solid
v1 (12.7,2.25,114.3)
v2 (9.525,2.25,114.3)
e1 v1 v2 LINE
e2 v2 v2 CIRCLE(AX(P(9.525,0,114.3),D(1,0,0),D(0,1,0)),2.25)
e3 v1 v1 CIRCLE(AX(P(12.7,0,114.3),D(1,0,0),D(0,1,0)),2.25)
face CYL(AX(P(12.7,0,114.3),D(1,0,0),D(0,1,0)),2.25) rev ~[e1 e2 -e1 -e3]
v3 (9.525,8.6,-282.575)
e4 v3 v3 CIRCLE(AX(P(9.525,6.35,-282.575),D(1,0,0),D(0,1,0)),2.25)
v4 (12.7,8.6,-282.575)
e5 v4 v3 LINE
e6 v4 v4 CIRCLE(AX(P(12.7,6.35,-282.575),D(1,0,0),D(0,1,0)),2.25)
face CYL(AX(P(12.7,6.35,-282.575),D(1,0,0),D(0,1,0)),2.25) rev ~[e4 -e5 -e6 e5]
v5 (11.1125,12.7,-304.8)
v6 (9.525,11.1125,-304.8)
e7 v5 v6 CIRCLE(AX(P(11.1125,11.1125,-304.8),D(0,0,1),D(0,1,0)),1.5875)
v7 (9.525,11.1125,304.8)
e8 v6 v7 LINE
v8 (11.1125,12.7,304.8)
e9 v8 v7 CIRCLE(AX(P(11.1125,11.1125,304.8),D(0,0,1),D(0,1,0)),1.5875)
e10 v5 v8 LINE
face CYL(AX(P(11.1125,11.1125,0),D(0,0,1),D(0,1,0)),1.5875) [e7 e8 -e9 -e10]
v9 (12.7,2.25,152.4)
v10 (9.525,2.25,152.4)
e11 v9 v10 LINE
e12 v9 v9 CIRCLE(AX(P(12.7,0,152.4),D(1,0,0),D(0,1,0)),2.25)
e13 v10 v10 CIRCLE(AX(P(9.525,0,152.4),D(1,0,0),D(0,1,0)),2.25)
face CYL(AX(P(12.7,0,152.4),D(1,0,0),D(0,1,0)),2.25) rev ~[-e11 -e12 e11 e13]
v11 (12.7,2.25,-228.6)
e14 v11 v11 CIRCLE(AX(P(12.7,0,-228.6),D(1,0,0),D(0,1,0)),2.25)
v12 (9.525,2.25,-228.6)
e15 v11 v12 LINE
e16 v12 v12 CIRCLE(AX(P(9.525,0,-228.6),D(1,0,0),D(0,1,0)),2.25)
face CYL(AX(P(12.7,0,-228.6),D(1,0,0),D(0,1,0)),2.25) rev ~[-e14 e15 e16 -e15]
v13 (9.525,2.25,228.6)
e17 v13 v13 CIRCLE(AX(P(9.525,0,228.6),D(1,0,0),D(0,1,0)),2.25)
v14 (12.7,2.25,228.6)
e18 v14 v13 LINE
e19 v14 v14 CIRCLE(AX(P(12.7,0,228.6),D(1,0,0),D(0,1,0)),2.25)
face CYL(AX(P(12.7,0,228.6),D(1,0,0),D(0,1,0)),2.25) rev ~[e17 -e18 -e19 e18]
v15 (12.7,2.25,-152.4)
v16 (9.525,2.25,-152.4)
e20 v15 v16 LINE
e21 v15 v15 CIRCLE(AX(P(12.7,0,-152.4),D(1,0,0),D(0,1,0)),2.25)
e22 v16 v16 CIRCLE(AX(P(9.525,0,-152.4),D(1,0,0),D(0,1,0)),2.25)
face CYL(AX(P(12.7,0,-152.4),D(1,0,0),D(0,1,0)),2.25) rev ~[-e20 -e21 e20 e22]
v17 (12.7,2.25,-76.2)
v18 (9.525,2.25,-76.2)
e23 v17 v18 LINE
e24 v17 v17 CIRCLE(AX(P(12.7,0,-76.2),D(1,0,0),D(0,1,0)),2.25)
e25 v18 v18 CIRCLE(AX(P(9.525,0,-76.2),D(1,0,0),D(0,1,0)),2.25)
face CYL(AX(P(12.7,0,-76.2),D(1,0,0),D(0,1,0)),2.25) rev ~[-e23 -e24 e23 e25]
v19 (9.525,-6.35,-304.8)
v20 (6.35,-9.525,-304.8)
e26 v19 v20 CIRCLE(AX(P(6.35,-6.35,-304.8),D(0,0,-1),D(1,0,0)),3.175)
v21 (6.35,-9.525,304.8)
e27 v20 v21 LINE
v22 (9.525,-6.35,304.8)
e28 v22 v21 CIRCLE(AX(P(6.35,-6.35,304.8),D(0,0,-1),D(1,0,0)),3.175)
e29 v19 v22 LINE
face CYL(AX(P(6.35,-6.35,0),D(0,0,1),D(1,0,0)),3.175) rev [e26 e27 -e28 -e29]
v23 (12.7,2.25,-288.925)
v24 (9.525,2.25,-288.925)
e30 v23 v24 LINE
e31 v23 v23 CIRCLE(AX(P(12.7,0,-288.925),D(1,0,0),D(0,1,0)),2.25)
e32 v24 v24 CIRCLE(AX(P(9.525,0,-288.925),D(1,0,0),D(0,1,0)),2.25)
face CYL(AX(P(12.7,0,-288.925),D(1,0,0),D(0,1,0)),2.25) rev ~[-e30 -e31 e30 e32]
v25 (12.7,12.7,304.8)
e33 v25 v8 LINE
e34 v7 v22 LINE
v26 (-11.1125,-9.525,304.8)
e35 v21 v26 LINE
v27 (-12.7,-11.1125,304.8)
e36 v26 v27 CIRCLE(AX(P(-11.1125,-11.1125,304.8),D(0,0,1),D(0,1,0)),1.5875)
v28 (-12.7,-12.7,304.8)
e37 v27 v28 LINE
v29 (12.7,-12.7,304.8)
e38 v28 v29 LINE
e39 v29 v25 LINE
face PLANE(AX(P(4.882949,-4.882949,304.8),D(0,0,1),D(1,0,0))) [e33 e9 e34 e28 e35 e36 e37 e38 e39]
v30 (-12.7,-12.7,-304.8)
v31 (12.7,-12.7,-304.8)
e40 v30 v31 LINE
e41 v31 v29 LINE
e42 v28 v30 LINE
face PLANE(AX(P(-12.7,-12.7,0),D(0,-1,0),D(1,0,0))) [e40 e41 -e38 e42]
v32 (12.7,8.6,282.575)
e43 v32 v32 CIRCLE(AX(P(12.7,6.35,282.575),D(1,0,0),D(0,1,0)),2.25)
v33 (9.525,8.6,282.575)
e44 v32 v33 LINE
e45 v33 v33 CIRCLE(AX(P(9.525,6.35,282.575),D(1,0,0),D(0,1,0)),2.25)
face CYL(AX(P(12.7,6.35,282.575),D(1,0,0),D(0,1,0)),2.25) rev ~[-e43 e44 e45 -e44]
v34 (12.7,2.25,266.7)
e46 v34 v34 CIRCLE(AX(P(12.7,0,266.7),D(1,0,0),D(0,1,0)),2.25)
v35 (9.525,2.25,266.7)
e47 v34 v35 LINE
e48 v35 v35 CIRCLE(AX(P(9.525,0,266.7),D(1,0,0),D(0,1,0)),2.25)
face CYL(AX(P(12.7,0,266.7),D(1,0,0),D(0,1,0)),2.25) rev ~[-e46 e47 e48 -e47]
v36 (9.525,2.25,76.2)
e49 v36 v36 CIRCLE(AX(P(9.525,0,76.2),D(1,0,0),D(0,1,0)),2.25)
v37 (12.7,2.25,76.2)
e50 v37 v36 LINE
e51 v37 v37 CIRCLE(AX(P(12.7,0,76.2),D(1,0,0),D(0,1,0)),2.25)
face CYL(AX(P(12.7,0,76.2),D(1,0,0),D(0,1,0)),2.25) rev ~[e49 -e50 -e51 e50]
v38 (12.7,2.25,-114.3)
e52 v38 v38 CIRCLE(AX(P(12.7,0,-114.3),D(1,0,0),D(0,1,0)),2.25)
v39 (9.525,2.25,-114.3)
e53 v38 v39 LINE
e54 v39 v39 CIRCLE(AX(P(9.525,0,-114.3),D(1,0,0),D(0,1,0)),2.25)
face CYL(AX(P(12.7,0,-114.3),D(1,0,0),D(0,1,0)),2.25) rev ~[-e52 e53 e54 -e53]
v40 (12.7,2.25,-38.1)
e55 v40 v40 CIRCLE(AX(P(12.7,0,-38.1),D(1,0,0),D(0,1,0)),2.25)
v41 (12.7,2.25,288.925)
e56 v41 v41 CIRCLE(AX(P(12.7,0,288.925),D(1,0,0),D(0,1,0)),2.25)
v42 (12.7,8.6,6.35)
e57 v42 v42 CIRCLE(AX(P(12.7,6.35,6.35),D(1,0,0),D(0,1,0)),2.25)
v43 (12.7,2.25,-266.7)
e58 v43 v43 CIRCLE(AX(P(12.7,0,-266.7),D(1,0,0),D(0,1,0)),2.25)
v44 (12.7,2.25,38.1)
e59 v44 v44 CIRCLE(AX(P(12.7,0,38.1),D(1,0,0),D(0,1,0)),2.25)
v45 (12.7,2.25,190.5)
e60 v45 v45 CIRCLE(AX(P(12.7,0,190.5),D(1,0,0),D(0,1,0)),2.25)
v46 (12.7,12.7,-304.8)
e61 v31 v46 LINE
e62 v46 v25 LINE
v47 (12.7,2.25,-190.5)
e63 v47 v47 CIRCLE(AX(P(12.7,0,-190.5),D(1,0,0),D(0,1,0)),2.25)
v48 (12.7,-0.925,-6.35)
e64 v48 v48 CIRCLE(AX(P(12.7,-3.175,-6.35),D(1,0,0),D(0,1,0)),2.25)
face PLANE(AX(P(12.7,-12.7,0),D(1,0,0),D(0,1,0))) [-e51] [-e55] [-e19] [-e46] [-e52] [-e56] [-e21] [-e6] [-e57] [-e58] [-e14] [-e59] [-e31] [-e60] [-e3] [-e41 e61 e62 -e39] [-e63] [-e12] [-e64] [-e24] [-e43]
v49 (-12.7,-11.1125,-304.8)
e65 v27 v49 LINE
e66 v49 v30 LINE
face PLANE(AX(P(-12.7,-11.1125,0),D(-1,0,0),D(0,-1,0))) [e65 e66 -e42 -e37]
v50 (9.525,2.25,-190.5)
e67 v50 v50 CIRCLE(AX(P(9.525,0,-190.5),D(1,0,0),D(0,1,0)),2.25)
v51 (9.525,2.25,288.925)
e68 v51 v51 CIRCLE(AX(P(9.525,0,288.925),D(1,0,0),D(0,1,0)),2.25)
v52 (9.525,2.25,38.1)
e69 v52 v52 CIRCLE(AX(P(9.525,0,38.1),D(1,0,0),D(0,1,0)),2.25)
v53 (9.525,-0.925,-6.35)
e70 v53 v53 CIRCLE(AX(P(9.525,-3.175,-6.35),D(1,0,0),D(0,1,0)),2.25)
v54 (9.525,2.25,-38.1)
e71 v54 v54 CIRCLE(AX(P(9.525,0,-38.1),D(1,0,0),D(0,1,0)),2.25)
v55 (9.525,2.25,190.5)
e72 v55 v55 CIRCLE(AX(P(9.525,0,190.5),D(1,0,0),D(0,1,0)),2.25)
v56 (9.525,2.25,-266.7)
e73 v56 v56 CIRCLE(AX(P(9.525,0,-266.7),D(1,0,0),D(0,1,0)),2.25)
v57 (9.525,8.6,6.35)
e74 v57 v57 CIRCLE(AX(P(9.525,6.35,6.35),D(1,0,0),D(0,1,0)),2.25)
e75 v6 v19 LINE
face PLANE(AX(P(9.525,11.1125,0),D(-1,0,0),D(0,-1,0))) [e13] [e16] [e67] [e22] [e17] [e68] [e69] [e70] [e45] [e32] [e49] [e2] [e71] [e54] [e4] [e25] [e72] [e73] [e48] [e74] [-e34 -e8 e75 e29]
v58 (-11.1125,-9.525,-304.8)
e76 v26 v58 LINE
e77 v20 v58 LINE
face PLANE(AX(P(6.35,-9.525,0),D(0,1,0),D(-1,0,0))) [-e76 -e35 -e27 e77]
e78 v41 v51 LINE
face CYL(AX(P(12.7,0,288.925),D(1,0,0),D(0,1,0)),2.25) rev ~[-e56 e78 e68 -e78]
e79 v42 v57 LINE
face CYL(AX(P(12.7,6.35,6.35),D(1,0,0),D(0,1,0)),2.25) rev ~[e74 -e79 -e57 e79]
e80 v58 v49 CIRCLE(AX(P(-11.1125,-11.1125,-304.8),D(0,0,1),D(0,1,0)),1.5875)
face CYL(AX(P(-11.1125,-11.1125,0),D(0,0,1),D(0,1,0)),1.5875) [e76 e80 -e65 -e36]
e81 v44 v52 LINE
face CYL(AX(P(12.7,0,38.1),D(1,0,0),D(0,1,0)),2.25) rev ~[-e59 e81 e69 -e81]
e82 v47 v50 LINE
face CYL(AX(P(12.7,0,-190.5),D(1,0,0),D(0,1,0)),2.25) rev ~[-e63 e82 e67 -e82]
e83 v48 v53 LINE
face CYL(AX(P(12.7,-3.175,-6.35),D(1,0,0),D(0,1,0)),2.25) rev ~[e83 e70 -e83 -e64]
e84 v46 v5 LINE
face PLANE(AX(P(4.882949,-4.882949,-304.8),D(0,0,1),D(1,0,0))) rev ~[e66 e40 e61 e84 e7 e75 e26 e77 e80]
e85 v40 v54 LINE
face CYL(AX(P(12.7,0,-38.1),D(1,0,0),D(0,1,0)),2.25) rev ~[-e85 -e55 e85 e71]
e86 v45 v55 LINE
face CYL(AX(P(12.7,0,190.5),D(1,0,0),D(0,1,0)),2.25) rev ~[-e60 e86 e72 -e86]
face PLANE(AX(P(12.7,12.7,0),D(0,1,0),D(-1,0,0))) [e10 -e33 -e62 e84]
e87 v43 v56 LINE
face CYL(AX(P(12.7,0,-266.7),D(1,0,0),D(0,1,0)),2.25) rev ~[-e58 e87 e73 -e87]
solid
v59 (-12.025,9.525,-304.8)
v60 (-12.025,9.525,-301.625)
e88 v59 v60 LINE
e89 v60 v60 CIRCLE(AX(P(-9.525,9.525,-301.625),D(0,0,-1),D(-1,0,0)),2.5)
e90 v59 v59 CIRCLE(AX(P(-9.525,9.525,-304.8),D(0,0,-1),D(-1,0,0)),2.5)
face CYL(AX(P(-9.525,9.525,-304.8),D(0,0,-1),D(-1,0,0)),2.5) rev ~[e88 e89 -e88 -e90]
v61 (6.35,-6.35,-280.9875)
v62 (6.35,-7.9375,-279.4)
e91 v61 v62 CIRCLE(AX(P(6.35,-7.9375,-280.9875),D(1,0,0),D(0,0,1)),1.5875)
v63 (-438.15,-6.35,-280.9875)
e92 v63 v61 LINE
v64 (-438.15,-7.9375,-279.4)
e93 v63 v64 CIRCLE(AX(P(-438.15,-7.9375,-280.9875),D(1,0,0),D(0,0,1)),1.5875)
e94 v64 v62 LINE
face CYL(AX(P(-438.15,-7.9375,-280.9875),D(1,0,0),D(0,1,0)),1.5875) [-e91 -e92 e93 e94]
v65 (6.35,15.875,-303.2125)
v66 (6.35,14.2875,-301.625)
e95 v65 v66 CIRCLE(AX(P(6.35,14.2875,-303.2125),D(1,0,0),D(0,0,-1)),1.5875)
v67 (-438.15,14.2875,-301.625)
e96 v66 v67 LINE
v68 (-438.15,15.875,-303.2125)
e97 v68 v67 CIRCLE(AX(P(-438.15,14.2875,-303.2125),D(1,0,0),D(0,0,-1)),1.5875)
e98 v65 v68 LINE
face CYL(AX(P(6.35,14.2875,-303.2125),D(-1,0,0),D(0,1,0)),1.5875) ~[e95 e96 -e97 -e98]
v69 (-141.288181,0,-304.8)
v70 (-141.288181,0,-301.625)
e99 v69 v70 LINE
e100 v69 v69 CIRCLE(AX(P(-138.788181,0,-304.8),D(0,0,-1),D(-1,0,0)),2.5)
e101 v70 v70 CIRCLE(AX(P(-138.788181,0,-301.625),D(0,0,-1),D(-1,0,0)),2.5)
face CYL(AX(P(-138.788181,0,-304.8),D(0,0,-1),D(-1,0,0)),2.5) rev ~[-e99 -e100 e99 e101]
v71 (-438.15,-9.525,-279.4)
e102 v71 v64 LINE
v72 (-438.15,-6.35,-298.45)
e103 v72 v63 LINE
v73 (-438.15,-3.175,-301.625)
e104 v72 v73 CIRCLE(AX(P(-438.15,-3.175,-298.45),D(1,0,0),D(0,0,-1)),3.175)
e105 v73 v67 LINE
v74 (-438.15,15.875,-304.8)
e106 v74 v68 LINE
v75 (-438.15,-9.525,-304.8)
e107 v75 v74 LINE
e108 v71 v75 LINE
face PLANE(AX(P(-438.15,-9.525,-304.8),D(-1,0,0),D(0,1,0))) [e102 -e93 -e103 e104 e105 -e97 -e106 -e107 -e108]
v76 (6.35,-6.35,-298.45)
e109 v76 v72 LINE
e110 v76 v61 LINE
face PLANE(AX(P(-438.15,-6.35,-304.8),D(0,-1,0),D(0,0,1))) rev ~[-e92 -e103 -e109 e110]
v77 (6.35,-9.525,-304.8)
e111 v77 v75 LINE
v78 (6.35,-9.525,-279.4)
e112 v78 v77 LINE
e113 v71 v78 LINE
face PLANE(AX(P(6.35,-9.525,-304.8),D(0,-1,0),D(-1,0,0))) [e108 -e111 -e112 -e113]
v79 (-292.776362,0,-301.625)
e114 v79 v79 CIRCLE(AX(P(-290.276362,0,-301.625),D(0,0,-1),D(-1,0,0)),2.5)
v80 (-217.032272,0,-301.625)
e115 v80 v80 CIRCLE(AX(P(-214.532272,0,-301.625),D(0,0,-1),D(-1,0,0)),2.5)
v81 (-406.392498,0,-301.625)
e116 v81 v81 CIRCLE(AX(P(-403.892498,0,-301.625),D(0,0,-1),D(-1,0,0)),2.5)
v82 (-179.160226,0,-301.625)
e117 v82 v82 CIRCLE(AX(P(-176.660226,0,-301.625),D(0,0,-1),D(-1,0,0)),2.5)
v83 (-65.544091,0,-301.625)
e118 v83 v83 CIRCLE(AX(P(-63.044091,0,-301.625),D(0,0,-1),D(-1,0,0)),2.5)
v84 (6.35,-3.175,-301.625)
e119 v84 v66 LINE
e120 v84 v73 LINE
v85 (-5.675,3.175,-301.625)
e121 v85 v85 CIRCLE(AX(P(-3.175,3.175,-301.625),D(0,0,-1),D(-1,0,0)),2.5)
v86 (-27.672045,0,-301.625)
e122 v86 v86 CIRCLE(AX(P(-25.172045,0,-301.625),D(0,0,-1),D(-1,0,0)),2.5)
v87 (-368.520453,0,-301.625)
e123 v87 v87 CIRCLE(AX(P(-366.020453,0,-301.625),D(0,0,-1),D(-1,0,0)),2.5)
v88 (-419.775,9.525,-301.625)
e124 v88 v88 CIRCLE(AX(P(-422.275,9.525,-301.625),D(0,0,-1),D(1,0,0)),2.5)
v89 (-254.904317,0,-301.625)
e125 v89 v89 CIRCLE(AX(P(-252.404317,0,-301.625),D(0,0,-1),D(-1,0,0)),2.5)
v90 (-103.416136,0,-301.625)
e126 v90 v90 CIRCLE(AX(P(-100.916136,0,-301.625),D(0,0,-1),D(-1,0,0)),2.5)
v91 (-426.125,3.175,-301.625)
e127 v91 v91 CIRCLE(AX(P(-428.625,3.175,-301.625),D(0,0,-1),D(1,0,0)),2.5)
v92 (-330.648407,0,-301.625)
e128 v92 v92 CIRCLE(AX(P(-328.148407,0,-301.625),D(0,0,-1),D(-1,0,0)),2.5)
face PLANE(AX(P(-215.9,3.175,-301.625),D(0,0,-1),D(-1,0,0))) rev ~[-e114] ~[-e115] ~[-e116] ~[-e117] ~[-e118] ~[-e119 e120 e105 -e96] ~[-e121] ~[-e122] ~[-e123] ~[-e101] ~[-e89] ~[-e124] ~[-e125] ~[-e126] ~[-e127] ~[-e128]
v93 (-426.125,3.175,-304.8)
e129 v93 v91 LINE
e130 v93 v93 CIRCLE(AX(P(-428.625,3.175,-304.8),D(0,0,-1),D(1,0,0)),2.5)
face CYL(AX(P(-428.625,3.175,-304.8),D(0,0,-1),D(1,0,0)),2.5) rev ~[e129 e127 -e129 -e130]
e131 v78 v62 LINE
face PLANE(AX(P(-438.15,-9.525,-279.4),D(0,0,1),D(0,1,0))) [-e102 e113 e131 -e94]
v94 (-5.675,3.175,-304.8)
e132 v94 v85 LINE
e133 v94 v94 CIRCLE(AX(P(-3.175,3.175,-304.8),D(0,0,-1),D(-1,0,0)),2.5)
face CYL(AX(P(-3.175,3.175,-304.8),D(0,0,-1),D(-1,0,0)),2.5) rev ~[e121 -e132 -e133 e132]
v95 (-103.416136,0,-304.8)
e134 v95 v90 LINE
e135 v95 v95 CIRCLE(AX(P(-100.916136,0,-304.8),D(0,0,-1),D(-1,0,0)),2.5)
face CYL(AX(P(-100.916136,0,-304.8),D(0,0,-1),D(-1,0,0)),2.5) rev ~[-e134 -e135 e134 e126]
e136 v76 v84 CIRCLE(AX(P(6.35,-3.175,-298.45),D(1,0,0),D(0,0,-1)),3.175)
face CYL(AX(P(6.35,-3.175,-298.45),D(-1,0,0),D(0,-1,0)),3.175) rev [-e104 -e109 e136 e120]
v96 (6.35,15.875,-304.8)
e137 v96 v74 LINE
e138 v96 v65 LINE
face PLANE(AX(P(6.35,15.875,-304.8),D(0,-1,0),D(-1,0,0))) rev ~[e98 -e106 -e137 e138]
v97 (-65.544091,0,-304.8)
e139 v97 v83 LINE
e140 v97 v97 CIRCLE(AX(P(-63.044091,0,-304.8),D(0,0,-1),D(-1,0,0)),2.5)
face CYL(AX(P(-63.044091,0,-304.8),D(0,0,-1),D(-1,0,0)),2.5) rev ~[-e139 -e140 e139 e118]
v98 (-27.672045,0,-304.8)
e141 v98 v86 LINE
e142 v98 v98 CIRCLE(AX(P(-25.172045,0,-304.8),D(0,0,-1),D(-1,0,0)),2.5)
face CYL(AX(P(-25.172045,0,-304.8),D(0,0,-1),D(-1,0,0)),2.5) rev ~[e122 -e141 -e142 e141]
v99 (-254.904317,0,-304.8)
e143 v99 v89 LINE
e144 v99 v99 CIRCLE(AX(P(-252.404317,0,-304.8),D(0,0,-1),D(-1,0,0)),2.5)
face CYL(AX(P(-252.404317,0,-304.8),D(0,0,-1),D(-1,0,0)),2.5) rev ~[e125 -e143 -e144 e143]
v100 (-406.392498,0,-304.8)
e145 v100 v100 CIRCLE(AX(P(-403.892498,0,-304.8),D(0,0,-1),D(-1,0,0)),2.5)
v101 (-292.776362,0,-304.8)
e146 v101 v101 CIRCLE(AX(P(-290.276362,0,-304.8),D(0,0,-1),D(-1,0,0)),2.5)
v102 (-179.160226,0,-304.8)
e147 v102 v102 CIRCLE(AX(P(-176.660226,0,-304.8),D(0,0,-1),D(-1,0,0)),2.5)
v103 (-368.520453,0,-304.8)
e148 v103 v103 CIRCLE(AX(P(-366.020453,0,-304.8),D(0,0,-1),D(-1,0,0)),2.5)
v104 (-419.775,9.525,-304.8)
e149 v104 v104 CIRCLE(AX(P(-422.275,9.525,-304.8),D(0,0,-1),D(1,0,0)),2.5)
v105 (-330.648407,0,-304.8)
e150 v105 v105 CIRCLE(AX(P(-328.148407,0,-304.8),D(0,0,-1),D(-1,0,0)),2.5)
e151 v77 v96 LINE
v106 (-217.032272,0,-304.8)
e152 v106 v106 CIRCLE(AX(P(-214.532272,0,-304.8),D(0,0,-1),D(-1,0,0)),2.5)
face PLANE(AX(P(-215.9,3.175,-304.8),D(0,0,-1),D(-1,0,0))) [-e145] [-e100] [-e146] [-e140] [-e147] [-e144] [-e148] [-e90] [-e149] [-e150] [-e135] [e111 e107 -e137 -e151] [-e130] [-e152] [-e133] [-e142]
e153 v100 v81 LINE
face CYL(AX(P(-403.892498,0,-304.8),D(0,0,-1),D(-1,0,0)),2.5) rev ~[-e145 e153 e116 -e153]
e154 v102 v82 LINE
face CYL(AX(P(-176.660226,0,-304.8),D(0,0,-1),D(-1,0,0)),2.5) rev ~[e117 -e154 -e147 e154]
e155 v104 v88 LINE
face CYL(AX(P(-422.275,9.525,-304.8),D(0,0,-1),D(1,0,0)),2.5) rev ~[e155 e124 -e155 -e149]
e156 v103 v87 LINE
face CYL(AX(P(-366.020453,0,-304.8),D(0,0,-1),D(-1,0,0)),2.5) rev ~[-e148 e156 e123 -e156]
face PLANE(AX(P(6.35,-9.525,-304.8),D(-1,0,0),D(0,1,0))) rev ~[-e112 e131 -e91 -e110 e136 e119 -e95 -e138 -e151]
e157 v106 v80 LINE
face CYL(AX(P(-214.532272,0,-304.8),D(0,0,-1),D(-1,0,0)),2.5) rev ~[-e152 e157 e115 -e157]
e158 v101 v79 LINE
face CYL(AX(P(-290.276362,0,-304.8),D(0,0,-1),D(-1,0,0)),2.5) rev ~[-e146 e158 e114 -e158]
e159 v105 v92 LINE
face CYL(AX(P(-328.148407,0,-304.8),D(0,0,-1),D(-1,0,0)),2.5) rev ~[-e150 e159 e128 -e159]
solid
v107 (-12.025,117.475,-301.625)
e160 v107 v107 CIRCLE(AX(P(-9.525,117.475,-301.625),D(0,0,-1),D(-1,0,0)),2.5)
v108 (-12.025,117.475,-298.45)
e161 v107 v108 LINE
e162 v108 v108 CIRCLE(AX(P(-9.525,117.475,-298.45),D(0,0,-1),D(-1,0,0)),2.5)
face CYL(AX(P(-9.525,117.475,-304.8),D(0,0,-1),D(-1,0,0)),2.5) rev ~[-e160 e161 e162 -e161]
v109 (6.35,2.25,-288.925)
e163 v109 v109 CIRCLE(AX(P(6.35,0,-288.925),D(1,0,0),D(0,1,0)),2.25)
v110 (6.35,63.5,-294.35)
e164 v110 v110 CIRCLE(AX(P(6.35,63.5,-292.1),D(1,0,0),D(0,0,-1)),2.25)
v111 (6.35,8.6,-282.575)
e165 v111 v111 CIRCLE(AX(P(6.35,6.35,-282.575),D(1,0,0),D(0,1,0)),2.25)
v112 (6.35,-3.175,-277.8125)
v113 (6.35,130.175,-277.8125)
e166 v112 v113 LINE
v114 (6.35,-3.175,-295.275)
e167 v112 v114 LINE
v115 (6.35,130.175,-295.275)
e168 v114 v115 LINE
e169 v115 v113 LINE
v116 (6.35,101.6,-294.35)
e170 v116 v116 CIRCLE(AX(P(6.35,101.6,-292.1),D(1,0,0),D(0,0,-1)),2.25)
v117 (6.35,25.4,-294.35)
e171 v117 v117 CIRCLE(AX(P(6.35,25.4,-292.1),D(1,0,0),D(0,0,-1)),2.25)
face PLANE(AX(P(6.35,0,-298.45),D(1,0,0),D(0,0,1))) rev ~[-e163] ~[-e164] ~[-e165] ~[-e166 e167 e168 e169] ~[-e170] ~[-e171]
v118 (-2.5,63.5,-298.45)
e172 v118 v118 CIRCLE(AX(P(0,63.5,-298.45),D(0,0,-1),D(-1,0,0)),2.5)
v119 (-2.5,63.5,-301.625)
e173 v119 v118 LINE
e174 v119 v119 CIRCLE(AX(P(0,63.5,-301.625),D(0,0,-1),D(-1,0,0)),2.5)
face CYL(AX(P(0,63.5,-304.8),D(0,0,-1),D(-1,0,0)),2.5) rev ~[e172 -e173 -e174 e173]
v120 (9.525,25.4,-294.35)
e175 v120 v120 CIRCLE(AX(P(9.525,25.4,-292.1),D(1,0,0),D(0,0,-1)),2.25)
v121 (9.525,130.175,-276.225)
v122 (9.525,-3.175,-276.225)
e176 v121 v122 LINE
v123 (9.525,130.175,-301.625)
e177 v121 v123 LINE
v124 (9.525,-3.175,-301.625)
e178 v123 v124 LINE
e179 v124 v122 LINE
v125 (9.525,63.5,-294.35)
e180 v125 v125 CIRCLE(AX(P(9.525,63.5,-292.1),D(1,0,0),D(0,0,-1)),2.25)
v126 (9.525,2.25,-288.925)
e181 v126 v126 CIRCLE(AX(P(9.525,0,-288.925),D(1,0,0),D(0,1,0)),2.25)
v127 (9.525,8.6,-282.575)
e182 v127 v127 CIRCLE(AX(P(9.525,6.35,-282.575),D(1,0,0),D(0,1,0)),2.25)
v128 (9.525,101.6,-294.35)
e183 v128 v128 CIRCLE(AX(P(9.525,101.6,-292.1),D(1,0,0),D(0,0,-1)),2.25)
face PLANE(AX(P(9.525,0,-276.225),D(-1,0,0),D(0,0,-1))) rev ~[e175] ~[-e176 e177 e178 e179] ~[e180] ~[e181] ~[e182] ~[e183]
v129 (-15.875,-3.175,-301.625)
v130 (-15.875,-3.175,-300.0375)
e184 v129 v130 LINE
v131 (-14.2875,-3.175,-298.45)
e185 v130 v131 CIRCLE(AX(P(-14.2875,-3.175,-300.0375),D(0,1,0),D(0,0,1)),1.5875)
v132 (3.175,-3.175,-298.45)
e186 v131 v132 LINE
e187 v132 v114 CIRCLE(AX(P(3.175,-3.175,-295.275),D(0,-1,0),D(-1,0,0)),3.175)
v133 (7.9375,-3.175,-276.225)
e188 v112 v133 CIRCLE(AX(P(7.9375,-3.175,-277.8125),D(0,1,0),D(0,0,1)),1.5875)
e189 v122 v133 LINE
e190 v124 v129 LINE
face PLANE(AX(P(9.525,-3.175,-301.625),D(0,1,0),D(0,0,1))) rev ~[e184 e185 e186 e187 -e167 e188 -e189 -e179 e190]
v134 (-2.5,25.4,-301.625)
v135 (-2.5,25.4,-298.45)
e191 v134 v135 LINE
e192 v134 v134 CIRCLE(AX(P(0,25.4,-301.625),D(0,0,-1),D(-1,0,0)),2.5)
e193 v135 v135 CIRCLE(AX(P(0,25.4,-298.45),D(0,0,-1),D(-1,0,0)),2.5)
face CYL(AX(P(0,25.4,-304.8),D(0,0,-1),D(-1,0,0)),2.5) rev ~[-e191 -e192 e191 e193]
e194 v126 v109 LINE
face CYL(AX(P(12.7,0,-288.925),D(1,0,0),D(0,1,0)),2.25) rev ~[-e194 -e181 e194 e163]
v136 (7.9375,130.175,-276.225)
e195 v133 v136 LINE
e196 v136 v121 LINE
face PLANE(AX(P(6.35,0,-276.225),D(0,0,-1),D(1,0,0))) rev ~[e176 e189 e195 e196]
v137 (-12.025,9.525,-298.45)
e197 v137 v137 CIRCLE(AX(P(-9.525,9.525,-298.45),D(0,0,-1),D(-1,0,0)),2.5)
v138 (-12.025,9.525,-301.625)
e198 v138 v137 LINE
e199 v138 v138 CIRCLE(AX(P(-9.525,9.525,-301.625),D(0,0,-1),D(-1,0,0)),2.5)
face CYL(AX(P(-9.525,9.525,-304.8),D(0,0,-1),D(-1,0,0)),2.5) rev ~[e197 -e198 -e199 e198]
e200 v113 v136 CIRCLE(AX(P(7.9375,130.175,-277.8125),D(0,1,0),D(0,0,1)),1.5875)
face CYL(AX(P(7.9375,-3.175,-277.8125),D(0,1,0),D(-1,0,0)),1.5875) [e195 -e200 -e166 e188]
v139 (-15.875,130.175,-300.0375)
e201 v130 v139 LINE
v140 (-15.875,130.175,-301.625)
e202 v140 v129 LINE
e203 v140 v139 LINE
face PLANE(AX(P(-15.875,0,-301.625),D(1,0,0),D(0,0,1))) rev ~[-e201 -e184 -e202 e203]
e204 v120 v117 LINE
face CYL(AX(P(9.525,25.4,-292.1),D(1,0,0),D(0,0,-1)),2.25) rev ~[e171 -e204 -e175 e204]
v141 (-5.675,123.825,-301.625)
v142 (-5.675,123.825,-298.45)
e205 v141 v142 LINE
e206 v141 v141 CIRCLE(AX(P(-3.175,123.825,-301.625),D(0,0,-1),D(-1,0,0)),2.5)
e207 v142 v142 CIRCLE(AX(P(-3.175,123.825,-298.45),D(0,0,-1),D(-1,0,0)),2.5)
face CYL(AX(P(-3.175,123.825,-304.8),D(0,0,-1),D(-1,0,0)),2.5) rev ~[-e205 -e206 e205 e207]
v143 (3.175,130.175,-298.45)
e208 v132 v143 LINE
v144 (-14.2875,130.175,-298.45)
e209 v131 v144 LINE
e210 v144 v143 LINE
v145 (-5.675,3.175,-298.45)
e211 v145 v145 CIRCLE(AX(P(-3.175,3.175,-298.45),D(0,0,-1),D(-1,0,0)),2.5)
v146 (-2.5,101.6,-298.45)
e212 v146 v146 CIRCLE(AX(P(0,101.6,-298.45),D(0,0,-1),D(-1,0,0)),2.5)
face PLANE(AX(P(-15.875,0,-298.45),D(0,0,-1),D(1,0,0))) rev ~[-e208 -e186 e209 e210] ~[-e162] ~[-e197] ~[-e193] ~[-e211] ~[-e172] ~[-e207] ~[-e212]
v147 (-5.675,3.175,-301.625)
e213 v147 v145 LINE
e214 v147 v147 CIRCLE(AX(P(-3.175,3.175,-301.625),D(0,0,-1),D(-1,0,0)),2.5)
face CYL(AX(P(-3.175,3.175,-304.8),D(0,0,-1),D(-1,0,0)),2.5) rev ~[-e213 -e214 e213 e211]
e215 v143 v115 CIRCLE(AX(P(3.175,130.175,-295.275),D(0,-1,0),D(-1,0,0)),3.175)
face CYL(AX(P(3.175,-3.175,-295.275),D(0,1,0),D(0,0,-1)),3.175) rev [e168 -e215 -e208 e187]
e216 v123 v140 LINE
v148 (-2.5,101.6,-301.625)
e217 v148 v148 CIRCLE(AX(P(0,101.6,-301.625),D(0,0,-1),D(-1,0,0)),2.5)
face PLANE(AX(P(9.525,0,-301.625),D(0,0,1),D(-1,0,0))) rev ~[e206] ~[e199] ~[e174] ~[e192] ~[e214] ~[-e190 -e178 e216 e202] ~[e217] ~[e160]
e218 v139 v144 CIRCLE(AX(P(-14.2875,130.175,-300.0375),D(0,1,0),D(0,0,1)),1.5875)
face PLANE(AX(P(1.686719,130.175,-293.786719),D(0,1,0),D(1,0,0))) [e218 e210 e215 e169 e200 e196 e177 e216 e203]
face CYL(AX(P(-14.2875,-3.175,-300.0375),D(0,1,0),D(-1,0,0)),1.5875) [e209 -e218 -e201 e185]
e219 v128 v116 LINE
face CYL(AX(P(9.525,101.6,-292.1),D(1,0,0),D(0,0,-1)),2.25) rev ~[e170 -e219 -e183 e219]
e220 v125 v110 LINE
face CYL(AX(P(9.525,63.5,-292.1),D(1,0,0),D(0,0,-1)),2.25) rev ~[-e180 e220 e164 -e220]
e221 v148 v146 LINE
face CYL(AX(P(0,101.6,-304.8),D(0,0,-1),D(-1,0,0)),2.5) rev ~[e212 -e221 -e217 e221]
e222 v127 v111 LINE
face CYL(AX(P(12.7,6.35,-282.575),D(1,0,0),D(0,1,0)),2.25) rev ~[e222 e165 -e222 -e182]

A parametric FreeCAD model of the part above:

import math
import FreeCAD as App
import Part
import Sketcher

V = App.Vector
Q = App.Units.Quantity


def edges_at(feature, points):
    """Names of the edges that pass closest to the given points."""
    edges = feature.Shape.Edges
    near = lambda p: min(range(len(edges)), key=lambda i: edges[i].distToShape(Part.Vertex(*p))[0])
    return sorted({f"Edge{near(p) + 1}" for p in points})

doc = App.newDocument("Part")
body = doc.addObject("PartDesign::Body", "Body")

# Sketch on XY plane
sketch1 = body.newObject("Sketcher::SketchObject", "Sketch")
sketch1.AttachmentSupport = (doc.getObject("XY_Plane"), [""])
sketch1.MapMode = "FlatFace"
sketch1.addGeometry([
    Part.LineSegment(V(-12.7, -12.7, 0), V(12.7, -12.7, 0)),  # 0
    Part.LineSegment(V(12.7, -12.7, 0), V(12.7, 12.7, 0)),  # 1
    Part.LineSegment(V(12.7, 12.7, 0), V(11.1125, 12.7, 0)),  # 2
    Part.ArcOfCircle(Part.Circle(V(11.1125, 11.1125, 0), V(0, 0, 1), 1.5875), math.radians(90), math.radians(180)),  # 3
    Part.LineSegment(V(9.525, 11.1125, 0), V(9.525, -6.35, 0)),  # 4
    Part.ArcOfCircle(Part.Circle(V(6.35, -6.35, 0), V(0, 0, 1), 3.175), math.radians(-90), math.radians(0)),  # 5
    Part.LineSegment(V(6.35, -9.525, 0), V(-11.1125, -9.525, 0)),  # 6
    Part.ArcOfCircle(Part.Circle(V(-11.1125, -11.1125, 0), V(0, 0, 1), 1.5875), math.radians(90), math.radians(180)),  # 7
    Part.LineSegment(V(-12.7, -11.1125, 0), V(-12.7, -12.7, 0)),  # 8
], False)
sketch1.addConstraint([
    Sketcher.Constraint("Coincident", 0, 2, 1, 1),
    Sketcher.Constraint("Coincident", 1, 2, 2, 1),
    Sketcher.Constraint("Tangent", 2, 2, 3, 1),
    Sketcher.Constraint("Tangent", 3, 2, 4, 1),
    Sketcher.Constraint("Tangent", 4, 2, 5, 2),
    Sketcher.Constraint("Tangent", 5, 1, 6, 1),
    Sketcher.Constraint("Tangent", 6, 2, 7, 1),
    Sketcher.Constraint("Tangent", 7, 2, 8, 1),
    Sketcher.Constraint("Coincident", 8, 2, 0, 1),
    Sketcher.Constraint("Horizontal", 0),
    Sketcher.Constraint("Vertical", 1),
    Sketcher.Constraint("Horizontal", 2),
    Sketcher.Constraint("Vertical", 4),
    Sketcher.Constraint("Horizontal", 6),
    Sketcher.Constraint("Vertical", 8),
    Sketcher.Constraint("Equal", 3, 7),
    Sketcher.Constraint("Symmetric", 3, 3, 7, 3, -1, 1),
    Sketcher.Constraint("Symmetric", 1, 2, 8, 2, -1, 1),
    Sketcher.Constraint("Equal", 0, 1),
    Sketcher.Constraint("DistanceX", 0, 1, 0, 2, Q("1 in")),
    Sketcher.Constraint("Radius", 3, Q("0.0625 in")),
    Sketcher.Constraint("Radius", 5, Q("0.125 in")),
])
pad1 = body.newObject("PartDesign::Pad", "Pad")
pad1.Profile = sketch1
pad1.Length = Q("24 in")
pad1.Midplane = True
body2 = doc.addObject("PartDesign::Body", "Body001")

# Sketch on XY plane
sketch2 = body2.newObject("Sketcher::SketchObject", "Sketch001")
sketch2.AttachmentSupport = (doc.getObject("XY_Plane001"), [""])
sketch2.MapMode = "FlatFace"
sketch2.AttachmentOffset = App.Placement(V(0, 0, -12 * 25.4), App.Rotation())
sketch2.addGeometry([
    Part.LineSegment(V(6.35, 15.875, 0), V(6.35, -9.525, 0)),
    Part.LineSegment(V(6.35, -9.525, 0), V(-438.15, -9.525, 0)),
    Part.LineSegment(V(-438.15, -9.525, 0), V(-438.15, 15.875, 0)),
    Part.LineSegment(V(-438.15, 15.875, 0), V(6.35, 15.875, 0)),
], False)
sketch2.addConstraint([
    Sketcher.Constraint("Coincident", 0, 2, 1, 1),
    Sketcher.Constraint("Coincident", 1, 2, 2, 1),
    Sketcher.Constraint("Coincident", 2, 2, 3, 1),
    Sketcher.Constraint("Coincident", 3, 2, 0, 1),
    Sketcher.Constraint("Vertical", 0),
    Sketcher.Constraint("Horizontal", 1),
    Sketcher.Constraint("Vertical", 2),
    Sketcher.Constraint("Horizontal", 3),
    Sketcher.Constraint("DistanceY", 0, 2, 0, 1, Q("1 in")),
    Sketcher.Constraint("DistanceX", 1, 2, 1, 1, Q("17.5 in")),
    Sketcher.Constraint("DistanceX", -1, 1, 0, 2, Q("0.25 in")),
    Sketcher.Constraint("DistanceY", 0, 2, -1, 1, Q("0.375 in")),
])
pad2 = body2.newObject("PartDesign::Pad", "Pad001")
pad2.Profile = sketch2
pad2.Length = Q("0.125 in")

# Sketch on YZ plane
sketch3 = body2.newObject("Sketcher::SketchObject", "Sketch002")
sketch3.AttachmentSupport = (doc.getObject("YZ_Plane001"), [""])
sketch3.MapMode = "FlatFace"
sketch3.AttachmentOffset = App.Placement(V(0, 0, -17.25 * 25.4), App.Rotation())
sketch3.addGeometry([
    Part.LineSegment(V(-6.35, -304.8, 0), V(-9.525, -304.8, 0)),
    Part.LineSegment(V(-9.525, -304.8, 0), V(-9.525, -279.4, 0)),
    Part.LineSegment(V(-9.525, -279.4, 0), V(-6.35, -279.4, 0)),
    Part.LineSegment(V(-6.35, -279.4, 0), V(-6.35, -304.8, 0)),
], False)
sketch3.addConstraint([
    Sketcher.Constraint("Coincident", 0, 2, 1, 1),
    Sketcher.Constraint("Coincident", 1, 2, 2, 1),
    Sketcher.Constraint("Coincident", 2, 2, 3, 1),
    Sketcher.Constraint("Coincident", 3, 2, 0, 1),
    Sketcher.Constraint("Horizontal", 0),
    Sketcher.Constraint("Vertical", 1),
    Sketcher.Constraint("Horizontal", 2),
    Sketcher.Constraint("Vertical", 3),
    Sketcher.Constraint("DistanceY", 1, 1, 1, 2, Q("1 in")),
    Sketcher.Constraint("DistanceY", 0, 2, -1, 1, Q("12 in")),
    Sketcher.Constraint("DistanceX", 0, 2, 0, 1, Q("0.125 in")),
    Sketcher.Constraint("DistanceX", 2, 2, -1, 1, Q("0.25 in")),
])
pad3 = body2.newObject("PartDesign::Pad", "Pad002")
pad3.Profile = sketch3
pad3.Length = Q("17.5 in")
doc.recompute()

fillet = body2.newObject("PartDesign::Fillet", "Fillet")
fillet.Base = (pad3, edges_at(pad3, [(-215.9, 15.875, -301.625), (-215.9, -6.35, -279.4)]))
fillet.Radius = Q("0.0625 in")
doc.recompute()

fillet2 = body2.newObject("PartDesign::Fillet", "Fillet001")
fillet2.Base = (fillet, edges_at(fillet, [(-215.9, -6.35, -301.625)]))
fillet2.Radius = Q("0.125 in")
body3 = doc.addObject("PartDesign::Body", "Body002")

# Sketch on YZ plane
sketch4 = body3.newObject("Sketcher::SketchObject", "Sketch003")
sketch4.AttachmentSupport = (doc.getObject("YZ_Plane002"), [""])
sketch4.MapMode = "FlatFace"
sketch4.AttachmentOffset = App.Placement(V(0, 0, 0.375 * 25.4), App.Rotation())
sketch4.addGeometry([
    Part.LineSegment(V(0, -301.625, 0), V(-3.175, -301.625, 0)),
    Part.LineSegment(V(-3.175, -301.625, 0), V(-3.175, -276.225, 0)),
    Part.LineSegment(V(-3.175, -276.225, 0), V(0, -276.225, 0)),
    Part.LineSegment(V(0, -276.225, 0), V(0, -301.625, 0)),
], False)
sketch4.addConstraint([
    Sketcher.Constraint("Coincident", 0, 2, 1, 1),
    Sketcher.Constraint("Coincident", 1, 2, 2, 1),
    Sketcher.Constraint("Coincident", 2, 2, 3, 1),
    Sketcher.Constraint("Coincident", 3, 2, 0, 1),
    Sketcher.Constraint("Horizontal", 0),
    Sketcher.Constraint("Vertical", 1),
    Sketcher.Constraint("Horizontal", 2),
    Sketcher.Constraint("Vertical", 3),
    Sketcher.Constraint("PointOnObject", 2, 2, -2),
    Sketcher.Constraint("DistanceY", 1, 1, 1, 2, Q("1 in")),
    Sketcher.Constraint("DistanceX", 0, 2, 0, 1, Q("0.125 in")),
    Sketcher.Constraint("DistanceY", 0, 2, -1, 1, Q("11.875 in")),
])
pad4 = body3.newObject("PartDesign::Pad", "Pad003")
pad4.Profile = sketch4
pad4.Length = Q("1 in")
pad4.Reversed = True

# Sketch on XZ plane
sketch5 = body3.newObject("Sketcher::SketchObject", "Sketch004")
sketch5.AttachmentSupport = (doc.getObject("XZ_Plane002"), [""])
sketch5.MapMode = "FlatFace"
sketch5.addGeometry([
    Part.LineSegment(V(-15.875, -298.45, 0), V(-15.875, -276.225, 0)),
    Part.LineSegment(V(-15.875, -276.225, 0), V(6.35, -276.225, 0)),
    Part.LineSegment(V(6.35, -276.225, 0), V(6.35, -298.45, 0)),
    Part.LineSegment(V(6.35, -298.45, 0), V(-15.875, -298.45, 0)),
], False)
sketch5.addConstraint([
    Sketcher.Constraint("Coincident", 0, 2, 1, 1),
    Sketcher.Constraint("Coincident", 1, 2, 2, 1),
    Sketcher.Constraint("Coincident", 2, 2, 3, 1),
    Sketcher.Constraint("Coincident", 3, 2, 0, 1),
    Sketcher.Constraint("Vertical", 0),
    Sketcher.Constraint("Horizontal", 1),
    Sketcher.Constraint("Vertical", 2),
    Sketcher.Constraint("Horizontal", 3),
    Sketcher.Constraint("Equal", 3, 0),
    Sketcher.Constraint("DistanceX", 1, 1, 1, 2, Q("0.875 in")),
    Sketcher.Constraint("DistanceX", -1, 1, 1, 2, Q("0.25 in")),
    Sketcher.Constraint("DistanceY", 2, 2, -1, 1, Q("11.75 in")),
])
pocket1 = body3.newObject("PartDesign::Pocket", "Pocket")
pocket1.Profile = sketch5
pocket1.Length = Q("0.125 in")
pocket1.Reversed = True

# Sketch on XZ plane
sketch6 = body3.newObject("Sketcher::SketchObject", "Sketch005")
sketch6.AttachmentSupport = (doc.getObject("XZ_Plane002"), [""])
sketch6.MapMode = "FlatFace"
sketch6.addGeometry([
    Part.LineSegment(V(-15.875, -301.625, 0), V(-15.875, -298.45, 0)),  # 0
    Part.LineSegment(V(-15.875, -298.45, 0), V(6.35, -298.45, 0)),  # 1
    Part.LineSegment(V(6.35, -298.45, 0), V(6.35, -276.225, 0)),  # 2
    Part.LineSegment(V(6.35, -276.225, 0), V(9.525, -276.225, 0)),  # 3
    Part.LineSegment(V(9.525, -276.225, 0), V(9.525, -301.625, 0)),  # 4
    Part.LineSegment(V(9.525, -301.625, 0), V(-15.875, -301.625, 0)),  # 5
], False)
sketch6.addConstraint([
    Sketcher.Constraint("Coincident", 0, 2, 1, 1),
    Sketcher.Constraint("Coincident", 1, 2, 2, 1),
    Sketcher.Constraint("Coincident", 2, 2, 3, 1),
    Sketcher.Constraint("Coincident", 3, 2, 4, 1),
    Sketcher.Constraint("Coincident", 4, 2, 5, 1),
    Sketcher.Constraint("Coincident", 5, 2, 0, 1),
    Sketcher.Constraint("Vertical", 0),
    Sketcher.Constraint("Horizontal", 1),
    Sketcher.Constraint("Vertical", 2),
    Sketcher.Constraint("Horizontal", 3),
    Sketcher.Constraint("Vertical", 4),
    Sketcher.Constraint("Horizontal", 5),
    Sketcher.Constraint("Equal", 3, 0),
    Sketcher.Constraint("Equal", 1, 2),
    Sketcher.Constraint("DistanceX", 5, 2, 5, 1, Q("1 in")),
    Sketcher.Constraint("DistanceX", 1, 1, 1, 2, Q("0.875 in")),
    Sketcher.Constraint("DistanceY", 0, 2, -1, 1, Q("11.75 in")),
    Sketcher.Constraint("DistanceX", -1, 1, 1, 2, Q("0.25 in")),
])
pad5 = body3.newObject("PartDesign::Pad", "Pad004")
pad5.Profile = sketch6
pad5.Length = Q("5.125 in")
pad5.Reversed = True
doc.recompute()

fillet3 = body3.newObject("PartDesign::Fillet", "Fillet002")
fillet3.Base = (pad5, edges_at(pad5, [(-15.875, 63.5, -298.45), (6.35, 63.5, -276.225)]))
fillet3.Radius = Q("0.0625 in")
doc.recompute()

fillet4 = body3.newObject("PartDesign::Fillet", "Fillet003")
fillet4.Base = (fillet3, edges_at(fillet3, [(6.35, 63.5, -298.45)]))
fillet4.Radius = Q("0.125 in")
body4 = doc.addObject("PartDesign::Body", "Body003")
body4.AllowCompound = True

# Sketch on YZ plane
sketch7 = body4.newObject("Sketcher::SketchObject", "Sketch006")
sketch7.AttachmentSupport = (doc.getObject("YZ_Plane003"), [""])
sketch7.MapMode = "FlatFace"
sketch7.AttachmentOffset = App.Placement(V(0, 0, 0.5 * 25.4), App.Rotation())
sketch7.addGeometry([
    Part.Circle(V(6.35, -282.575, 0), V(0, 0, 1), 2.25),
    Part.Circle(V(0, -288.925, 0), V(0, 0, 1), 2.25),
], False)
sketch7.addConstraint([
    Sketcher.Constraint("Equal", 0, 1),
    Sketcher.Constraint("PointOnObject", 1, 3, -2),
    Sketcher.Constraint("Diameter", 0, 4.5),
    Sketcher.Constraint("DistanceX", -1, 1, 0, 3, Q("0.25 in")),
    Sketcher.Constraint("DistanceY", 1, 3, 0, 3, Q("0.25 in")),
    Sketcher.Constraint("DistanceY", 0, 3, -1, 1, Q("11.125 in")),
])
pad6 = body4.newObject("PartDesign::Pad", "Pad005")
pad6.Profile = sketch7
pad6.Length = Q("2 in")
pad6.Reversed = True
doc.recompute()

body5 = doc.addObject("PartDesign::Body", "Body004")
body5.BaseFeature = body4
boolean = body.newObject("PartDesign::Boolean", "Boolean")
boolean.Type = "Cut"
boolean.addObjects([body5])
doc.recompute()

# Sketch on YZ plane
sketch8 = body.newObject("Sketcher::SketchObject", "Sketch007")
sketch8.AttachmentSupport = (doc.getObject("YZ_Plane"), [""])
sketch8.MapMode = "FlatFace"
sketch8.AttachmentOffset = App.Placement(V(0, 0, 0.5 * 25.4), App.Rotation())
sketch8.addGeometry([
    Part.Circle(V(0, -288.925, 0), V(0, 0, 1), 2.25),  # 0
    Part.Circle(V(6.35, -282.575, 0), V(0, 0, 1), 2.25),  # 1
    Part.Circle(V(0, 288.925, 0), V(0, 0, 1), 2.25),  # 2
    Part.Circle(V(6.35, 282.575, 0), V(0, 0, 1), 2.25),  # 3
    Part.Circle(V(6.35, 6.35, 0), V(0, 0, 1), 2.25),  # 4
    Part.Circle(V(-3.175, -6.35, 0), V(0, 0, 1), 2.25),  # 5
    Part.Circle(V(0, 266.7, 0), V(0, 0, 1), 2.25),  # 6
    Part.Circle(V(0, 228.6, 0), V(0, 0, 1), 2.25),  # 7
    Part.Circle(V(0, 190.5, 0), V(0, 0, 1), 2.25),  # 8
    Part.Circle(V(0, 152.4, 0), V(0, 0, 1), 2.25),  # 9
    Part.Circle(V(0, 114.3, 0), V(0, 0, 1), 2.25),  # 10
    Part.Circle(V(0, 76.2, 0), V(0, 0, 1), 2.25),  # 11
    Part.Circle(V(0, 38.1, 0), V(0, 0, 1), 2.25),  # 12
    Part.Circle(V(0, -38.1, 0), V(0, 0, 1), 2.25),  # 13
    Part.Circle(V(0, -76.2, 0), V(0, 0, 1), 2.25),  # 14
    Part.Circle(V(0, -114.3, 0), V(0, 0, 1), 2.25),  # 15
    Part.Circle(V(0, -152.4, 0), V(0, 0, 1), 2.25),  # 16
    Part.Circle(V(0, -190.5, 0), V(0, 0, 1), 2.25),  # 17
    Part.Circle(V(0, -228.6, 0), V(0, 0, 1), 2.25),  # 18
    Part.Circle(V(0, -266.7, 0), V(0, 0, 1), 2.25),  # 19
], False)
sketch8.addConstraint([
    Sketcher.Constraint("Equal", 0, 1),
    Sketcher.Constraint("Equal", 1, 2),
    Sketcher.Constraint("Equal", 2, 3),
    Sketcher.Constraint("Equal", 3, 4),
    Sketcher.Constraint("Equal", 4, 5),
    Sketcher.Constraint("Equal", 5, 6),
    Sketcher.Constraint("Equal", 6, 7),
    Sketcher.Constraint("Equal", 7, 8),
    Sketcher.Constraint("Equal", 8, 9),
    Sketcher.Constraint("Equal", 9, 10),
    Sketcher.Constraint("Equal", 10, 11),
    Sketcher.Constraint("Equal", 11, 12),
    Sketcher.Constraint("Equal", 12, 13),
    Sketcher.Constraint("Equal", 13, 14),
    Sketcher.Constraint("Equal", 14, 15),
    Sketcher.Constraint("Equal", 15, 16),
    Sketcher.Constraint("Equal", 16, 17),
    Sketcher.Constraint("Equal", 17, 18),
    Sketcher.Constraint("Equal", 18, 19),
    Sketcher.Constraint("Symmetric", 0, 3, 2, 3, -1, 1),
    Sketcher.Constraint("Symmetric", 12, 3, 13, 3, -1, 1),
    Sketcher.Constraint("Symmetric", 11, 3, 14, 3, -1, 1),
    Sketcher.Constraint("Symmetric", 10, 3, 15, 3, -1, 1),
    Sketcher.Constraint("Symmetric", 9, 3, 16, 3, -1, 1),
    Sketcher.Constraint("Symmetric", 8, 3, 17, 3, -1, 1),
    Sketcher.Constraint("Symmetric", 7, 3, 18, 3, -1, 1),
    Sketcher.Constraint("Symmetric", 6, 3, 19, 3, -1, 1),
    Sketcher.Constraint("Symmetric", 1, 3, 3, 3, -1),
    Sketcher.Constraint("PointOnObject", 0, 3, -2),
    Sketcher.Constraint("PointOnObject", 6, 3, -2),
    Sketcher.Constraint("PointOnObject", 7, 3, -2),
    Sketcher.Constraint("PointOnObject", 8, 3, -2),
    Sketcher.Constraint("PointOnObject", 9, 3, -2),
    Sketcher.Constraint("PointOnObject", 10, 3, -2),
    Sketcher.Constraint("PointOnObject", 11, 3, -2),
    Sketcher.Constraint("PointOnObject", 12, 3, -2),
    Sketcher.Constraint("Vertical", 3, 3, 4, 3),
    Sketcher.Constraint("DistanceY", -1, 1, 7, 3, Q("9 in")),
    Sketcher.Constraint("DistanceY", -1, 1, 9, 3, Q("6 in")),
    Sketcher.Constraint("DistanceY", -1, 1, 11, 3, Q("3 in")),
    Sketcher.Constraint("DistanceY", 8, 3, 6, 3, Q("3 in")),
    Sketcher.Constraint("DistanceY", 10, 3, 8, 3, Q("3 in")),
    Sketcher.Constraint("DistanceY", 12, 3, 10, 3, Q("3 in")),
    Sketcher.Constraint("DistanceY", 13, 3, 12, 3, Q("3 in")),
    Sketcher.Constraint("DistanceY", 1, 3, 2, 3, Q("22.5 in")),
    Sketcher.Constraint("DistanceY", 5, 3, 4, 3, Q("0.5 in")),
    Sketcher.Constraint("Diameter", 0, 4.5),
    Sketcher.Constraint("DistanceX", -1, 1, 1, 3, Q("0.25 in")),
    Sketcher.Constraint("DistanceY", -1, 1, 4, 3, Q("0.25 in")),
    Sketcher.Constraint("DistanceY", 0, 3, 1, 3, Q("0.25 in")),
    Sketcher.Constraint("DistanceX", 5, 3, -1, 1, Q("0.125 in")),
])
pocket2 = body.newObject("PartDesign::Pocket", "Pocket001")
pocket2.Profile = sketch8
pocket2.Length = Q("2 in")
doc.recompute()

boolean2 = body3.newObject("PartDesign::Boolean", "Boolean001")
boolean2.Type = "Cut"
boolean2.addObjects([body4])
body6 = doc.addObject("PartDesign::Body", "Body005")
body6.AllowCompound = True

# Sketch on XY plane
sketch9 = body6.newObject("Sketcher::SketchObject", "Sketch008")
sketch9.AttachmentSupport = (doc.getObject("XY_Plane005"), [""])
sketch9.MapMode = "FlatFace"
sketch9.AttachmentOffset = App.Placement(V(0, 0, -12 * 25.4), App.Rotation())
sketch9.addGeometry([
    Part.Circle(V(-3.175, 3.175, 0), V(0, 0, 1), 2.5),
    Part.Circle(V(-9.525, 9.525, 0), V(0, 0, 1), 2.5),
], False)
sketch9.addConstraint([
    Sketcher.Constraint("Equal", 0, 1),
    Sketcher.Constraint("Diameter", 0, 5.0),
    Sketcher.Constraint("DistanceX", 1, 3, 0, 3, Q("0.25 in")),
    Sketcher.Constraint("DistanceY", 0, 3, 1, 3, Q("0.25 in")),
    Sketcher.Constraint("DistanceX", 0, 3, -1, 1, Q("0.125 in")),
    Sketcher.Constraint("DistanceY", -1, 1, 0, 3, Q("0.125 in")),
])
pad7 = body6.newObject("PartDesign::Pad", "Pad006")
pad7.Profile = sketch9
pad7.Length = Q("2 in")
doc.recompute()

body7 = doc.addObject("PartDesign::Body", "Body006")
body7.BaseFeature = body6
boolean3 = body2.newObject("PartDesign::Boolean", "Boolean002")
boolean3.Type = "Cut"
boolean3.addObjects([body7])
doc.recompute()

# Sketch on XY plane
sketch10 = body2.newObject("Sketcher::SketchObject", "Sketch009")
sketch10.AttachmentSupport = (doc.getObject("XY_Plane001"), [""])
sketch10.MapMode = "FlatFace"
sketch10.AttachmentOffset = App.Placement(V(0, 0, -12 * 25.4), App.Rotation())
sketch10.addGeometry([
    Part.Circle(V(-25.172045, 0, 0), V(0, 0, 1), 2.5),  # 0
    Part.Circle(V(-63.044091, 0, 0), V(0, 0, 1), 2.5),  # 1
    Part.Circle(V(-100.916136, 0, 0), V(0, 0, 1), 2.5),  # 2
    Part.Circle(V(-138.788181, 0, 0), V(0, 0, 1), 2.5),  # 3
    Part.Circle(V(-176.660226, 0, 0), V(0, 0, 1), 2.5),  # 4
    Part.Circle(V(-214.532272, 0, 0), V(0, 0, 1), 2.5),  # 5
    Part.Circle(V(-252.404317, 0, 0), V(0, 0, 1), 2.5),  # 6
    Part.Circle(V(-290.276362, 0, 0), V(0, 0, 1), 2.5),  # 7
    Part.Circle(V(-328.148407, 0, 0), V(0, 0, 1), 2.5),  # 8
    Part.Circle(V(-366.020453, 0, 0), V(0, 0, 1), 2.5),  # 9
    Part.Circle(V(-403.892498, 0, 0), V(0, 0, 1), 2.5),  # 10
    Part.Circle(V(-3.175, 3.175, 0), V(0, 0, 1), 2.5),  # 11
    Part.Circle(V(-9.525, 9.525, 0), V(0, 0, 1), 2.5),  # 12
    Part.Circle(V(-428.625, 3.175, 0), V(0, 0, 1), 2.5),  # 13
    Part.Circle(V(-422.275, 9.525, 0), V(0, 0, 1), 2.5),  # 14
], False)
sketch10.addConstraint([
    Sketcher.Constraint("Equal", 0, 1),
    Sketcher.Constraint("Equal", 1, 2),
    Sketcher.Constraint("Equal", 2, 3),
    Sketcher.Constraint("Equal", 3, 4),
    Sketcher.Constraint("Equal", 4, 5),
    Sketcher.Constraint("Equal", 5, 6),
    Sketcher.Constraint("Equal", 6, 7),
    Sketcher.Constraint("Equal", 7, 8),
    Sketcher.Constraint("Equal", 8, 9),
    Sketcher.Constraint("Equal", 9, 10),
    Sketcher.Constraint("Equal", 10, 11),
    Sketcher.Constraint("Equal", 11, 12),
    Sketcher.Constraint("Equal", 12, 13),
    Sketcher.Constraint("Equal", 13, 14),
    Sketcher.Constraint("PointOnObject", 0, 3, -1),
    Sketcher.Constraint("PointOnObject", 1, 3, -1),
    Sketcher.Constraint("PointOnObject", 2, 3, -1),
    Sketcher.Constraint("PointOnObject", 3, 3, -1),
    Sketcher.Constraint("PointOnObject", 4, 3, -1),
    Sketcher.Constraint("PointOnObject", 5, 3, -1),
    Sketcher.Constraint("PointOnObject", 6, 3, -1),
    Sketcher.Constraint("PointOnObject", 7, 3, -1),
    Sketcher.Constraint("PointOnObject", 8, 3, -1),
    Sketcher.Constraint("PointOnObject", 9, 3, -1),
    Sketcher.Constraint("PointOnObject", 10, 3, -1),
    Sketcher.Constraint("Horizontal", 11, 3, 13, 3),
    Sketcher.Constraint("Horizontal", 12, 3, 14, 3),
    Sketcher.Constraint("Diameter", 0, 5.0),
    Sketcher.Constraint("DistanceX", 12, 3, 11, 3, Q("0.25 in")),
    Sketcher.Constraint("DistanceY", 11, 3, 12, 3, Q("0.25 in")),
    Sketcher.Constraint("DistanceX", 13, 3, 14, 3, Q("0.25 in")),
    Sketcher.Constraint("DistanceX", 11, 3, -1, 1, Q("0.125 in")),
    Sketcher.Constraint("DistanceY", -1, 1, 11, 3, Q("0.125 in")),
    Sketcher.Constraint("DistanceX", 13, 3, -1, 1, Q("16.875 in")),
    Sketcher.Constraint("DistanceX", 1, 3, -1, 1, 63.044091),
    Sketcher.Constraint("DistanceX", 3, 3, -1, 1, 138.788181),
    Sketcher.Constraint("DistanceX", 5, 3, -1, 1, 214.532272),
    Sketcher.Constraint("DistanceX", 2, 3, 0, 3, 75.744091),
    Sketcher.Constraint("DistanceX", 4, 3, 2, 3, 75.744091),
    Sketcher.Constraint("DistanceX", 6, 3, 4, 3, 75.744091),
    Sketcher.Constraint("DistanceX", 7, 3, 5, 3, 75.744091),
    Sketcher.Constraint("DistanceX", 8, 3, 6, 3, 75.744091),
    Sketcher.Constraint("DistanceX", 9, 3, 7, 3, 75.744091),
    Sketcher.Constraint("DistanceX", 10, 3, 8, 3, 75.744091),
    Sketcher.Constraint("DistanceX", 0, 3, -1, 1, 25.172045),
])
pocket3 = body2.newObject("PartDesign::Pocket", "Pocket002")
pocket3.Profile = sketch10
pocket3.Length = Q("2 in")
pocket3.Reversed = True
doc.recompute()

boolean4 = body3.newObject("PartDesign::Boolean", "Boolean003")
boolean4.Type = "Cut"
boolean4.addObjects([body6])

# Sketch on XY plane
sketch11 = body3.newObject("Sketcher::SketchObject", "Sketch010")
sketch11.AttachmentSupport = (doc.getObject("XY_Plane002"), [""])
sketch11.MapMode = "FlatFace"
sketch11.AttachmentOffset = App.Placement(V(0, 0, -12 * 25.4), App.Rotation())
sketch11.addGeometry([
    Part.Circle(V(0, 25.4, 0), V(0, 0, 1), 2.5),  # 0
    Part.Circle(V(0, 63.5, 0), V(0, 0, 1), 2.5),  # 1
    Part.Circle(V(0, 101.6, 0), V(0, 0, 1), 2.5),  # 2
    Part.Circle(V(0, 139.7, 0), V(0, 0, 1), 2.5),  # 3
    Part.Circle(V(-3.175, 3.175, 0), V(0, 0, 1), 2.5),  # 4
    Part.Circle(V(-9.525, 9.525, 0), V(0, 0, 1), 2.5),  # 5
    Part.Circle(V(-3.175, 123.825, 0), V(0, 0, 1), 2.5),  # 6
    Part.Circle(V(-9.525, 117.475, 0), V(0, 0, 1), 2.5),  # 7
], False)
sketch11.addConstraint([
    Sketcher.Constraint("Equal", 0, 1),
    Sketcher.Constraint("Equal", 1, 2),
    Sketcher.Constraint("Equal", 2, 3),
    Sketcher.Constraint("Equal", 3, 4),
    Sketcher.Constraint("Equal", 4, 5),
    Sketcher.Constraint("Equal", 5, 6),
    Sketcher.Constraint("Equal", 6, 7),
    Sketcher.Constraint("PointOnObject", 0, 3, -2),
    Sketcher.Constraint("PointOnObject", 1, 3, -2),
    Sketcher.Constraint("PointOnObject", 2, 3, -2),
    Sketcher.Constraint("PointOnObject", 3, 3, -2),
    Sketcher.Constraint("Vertical", 4, 3, 6, 3),
    Sketcher.Constraint("Vertical", 5, 3, 7, 3),
    Sketcher.Constraint("DistanceY", -1, 1, 0, 3, Q("1 in")),
    Sketcher.Constraint("DistanceY", -1, 1, 2, 3, Q("4 in")),
    Sketcher.Constraint("DistanceY", 1, 3, 3, 3, Q("3 in")),
    Sketcher.Constraint("DistanceY", -1, 1, 1, 3, Q("2.5 in")),
    Sketcher.Constraint("DistanceY", 5, 3, 6, 3, Q("4.5 in")),
    Sketcher.Constraint("Diameter", 0, 5.0),
    Sketcher.Constraint("DistanceX", 5, 3, 4, 3, Q("0.25 in")),
    Sketcher.Constraint("DistanceY", 4, 3, 5, 3, Q("0.25 in")),
    Sketcher.Constraint("DistanceY", 7, 3, 6, 3, Q("0.25 in")),
    Sketcher.Constraint("DistanceX", 4, 3, -1, 1, Q("0.125 in")),
    Sketcher.Constraint("DistanceY", -1, 1, 4, 3, Q("0.125 in")),
])
pocket4 = body3.newObject("PartDesign::Pocket", "Pocket003")
pocket4.Profile = sketch11
pocket4.Length = Q("2 in")
pocket4.Reversed = True

# Sketch on YZ plane
sketch12 = body3.newObject("Sketcher::SketchObject", "Sketch011")
sketch12.AttachmentSupport = (doc.getObject("YZ_Plane002"), [""])
sketch12.MapMode = "FlatFace"
sketch12.AttachmentOffset = App.Placement(V(0, 0, 0.375 * 25.4), App.Rotation())
sketch12.addGeometry([
    Part.Circle(V(25.4, -292.1, 0), V(0, 0, 1), 2.25),
    Part.Circle(V(63.5, -292.1, 0), V(0, 0, 1), 2.25),
    Part.Circle(V(101.6, -292.1, 0), V(0, 0, 1), 2.25),
], False)
sketch12.addConstraint([
    Sketcher.Constraint("Equal", 0, 1),
    Sketcher.Constraint("Equal", 1, 2),
    Sketcher.Constraint("Horizontal", 0, 3, 1, 3),
    Sketcher.Constraint("Horizontal", 1, 3, 2, 3),
    Sketcher.Constraint("DistanceX", -1, 1, 0, 3, Q("1 in")),
    Sketcher.Constraint("DistanceX", -1, 1, 2, 3, Q("4 in")),
    Sketcher.Constraint("DistanceY", 0, 3, -1, 1, Q("11.5 in")),
    Sketcher.Constraint("DistanceX", -1, 1, 1, 3, Q("2.5 in")),
    Sketcher.Constraint("Diameter", 0, 4.5),
])
pocket5 = body3.newObject("PartDesign::Pocket", "Pocket004")
pocket5.Profile = sketch12
pocket5.Length = Q("1 in")

doc.recompute()
